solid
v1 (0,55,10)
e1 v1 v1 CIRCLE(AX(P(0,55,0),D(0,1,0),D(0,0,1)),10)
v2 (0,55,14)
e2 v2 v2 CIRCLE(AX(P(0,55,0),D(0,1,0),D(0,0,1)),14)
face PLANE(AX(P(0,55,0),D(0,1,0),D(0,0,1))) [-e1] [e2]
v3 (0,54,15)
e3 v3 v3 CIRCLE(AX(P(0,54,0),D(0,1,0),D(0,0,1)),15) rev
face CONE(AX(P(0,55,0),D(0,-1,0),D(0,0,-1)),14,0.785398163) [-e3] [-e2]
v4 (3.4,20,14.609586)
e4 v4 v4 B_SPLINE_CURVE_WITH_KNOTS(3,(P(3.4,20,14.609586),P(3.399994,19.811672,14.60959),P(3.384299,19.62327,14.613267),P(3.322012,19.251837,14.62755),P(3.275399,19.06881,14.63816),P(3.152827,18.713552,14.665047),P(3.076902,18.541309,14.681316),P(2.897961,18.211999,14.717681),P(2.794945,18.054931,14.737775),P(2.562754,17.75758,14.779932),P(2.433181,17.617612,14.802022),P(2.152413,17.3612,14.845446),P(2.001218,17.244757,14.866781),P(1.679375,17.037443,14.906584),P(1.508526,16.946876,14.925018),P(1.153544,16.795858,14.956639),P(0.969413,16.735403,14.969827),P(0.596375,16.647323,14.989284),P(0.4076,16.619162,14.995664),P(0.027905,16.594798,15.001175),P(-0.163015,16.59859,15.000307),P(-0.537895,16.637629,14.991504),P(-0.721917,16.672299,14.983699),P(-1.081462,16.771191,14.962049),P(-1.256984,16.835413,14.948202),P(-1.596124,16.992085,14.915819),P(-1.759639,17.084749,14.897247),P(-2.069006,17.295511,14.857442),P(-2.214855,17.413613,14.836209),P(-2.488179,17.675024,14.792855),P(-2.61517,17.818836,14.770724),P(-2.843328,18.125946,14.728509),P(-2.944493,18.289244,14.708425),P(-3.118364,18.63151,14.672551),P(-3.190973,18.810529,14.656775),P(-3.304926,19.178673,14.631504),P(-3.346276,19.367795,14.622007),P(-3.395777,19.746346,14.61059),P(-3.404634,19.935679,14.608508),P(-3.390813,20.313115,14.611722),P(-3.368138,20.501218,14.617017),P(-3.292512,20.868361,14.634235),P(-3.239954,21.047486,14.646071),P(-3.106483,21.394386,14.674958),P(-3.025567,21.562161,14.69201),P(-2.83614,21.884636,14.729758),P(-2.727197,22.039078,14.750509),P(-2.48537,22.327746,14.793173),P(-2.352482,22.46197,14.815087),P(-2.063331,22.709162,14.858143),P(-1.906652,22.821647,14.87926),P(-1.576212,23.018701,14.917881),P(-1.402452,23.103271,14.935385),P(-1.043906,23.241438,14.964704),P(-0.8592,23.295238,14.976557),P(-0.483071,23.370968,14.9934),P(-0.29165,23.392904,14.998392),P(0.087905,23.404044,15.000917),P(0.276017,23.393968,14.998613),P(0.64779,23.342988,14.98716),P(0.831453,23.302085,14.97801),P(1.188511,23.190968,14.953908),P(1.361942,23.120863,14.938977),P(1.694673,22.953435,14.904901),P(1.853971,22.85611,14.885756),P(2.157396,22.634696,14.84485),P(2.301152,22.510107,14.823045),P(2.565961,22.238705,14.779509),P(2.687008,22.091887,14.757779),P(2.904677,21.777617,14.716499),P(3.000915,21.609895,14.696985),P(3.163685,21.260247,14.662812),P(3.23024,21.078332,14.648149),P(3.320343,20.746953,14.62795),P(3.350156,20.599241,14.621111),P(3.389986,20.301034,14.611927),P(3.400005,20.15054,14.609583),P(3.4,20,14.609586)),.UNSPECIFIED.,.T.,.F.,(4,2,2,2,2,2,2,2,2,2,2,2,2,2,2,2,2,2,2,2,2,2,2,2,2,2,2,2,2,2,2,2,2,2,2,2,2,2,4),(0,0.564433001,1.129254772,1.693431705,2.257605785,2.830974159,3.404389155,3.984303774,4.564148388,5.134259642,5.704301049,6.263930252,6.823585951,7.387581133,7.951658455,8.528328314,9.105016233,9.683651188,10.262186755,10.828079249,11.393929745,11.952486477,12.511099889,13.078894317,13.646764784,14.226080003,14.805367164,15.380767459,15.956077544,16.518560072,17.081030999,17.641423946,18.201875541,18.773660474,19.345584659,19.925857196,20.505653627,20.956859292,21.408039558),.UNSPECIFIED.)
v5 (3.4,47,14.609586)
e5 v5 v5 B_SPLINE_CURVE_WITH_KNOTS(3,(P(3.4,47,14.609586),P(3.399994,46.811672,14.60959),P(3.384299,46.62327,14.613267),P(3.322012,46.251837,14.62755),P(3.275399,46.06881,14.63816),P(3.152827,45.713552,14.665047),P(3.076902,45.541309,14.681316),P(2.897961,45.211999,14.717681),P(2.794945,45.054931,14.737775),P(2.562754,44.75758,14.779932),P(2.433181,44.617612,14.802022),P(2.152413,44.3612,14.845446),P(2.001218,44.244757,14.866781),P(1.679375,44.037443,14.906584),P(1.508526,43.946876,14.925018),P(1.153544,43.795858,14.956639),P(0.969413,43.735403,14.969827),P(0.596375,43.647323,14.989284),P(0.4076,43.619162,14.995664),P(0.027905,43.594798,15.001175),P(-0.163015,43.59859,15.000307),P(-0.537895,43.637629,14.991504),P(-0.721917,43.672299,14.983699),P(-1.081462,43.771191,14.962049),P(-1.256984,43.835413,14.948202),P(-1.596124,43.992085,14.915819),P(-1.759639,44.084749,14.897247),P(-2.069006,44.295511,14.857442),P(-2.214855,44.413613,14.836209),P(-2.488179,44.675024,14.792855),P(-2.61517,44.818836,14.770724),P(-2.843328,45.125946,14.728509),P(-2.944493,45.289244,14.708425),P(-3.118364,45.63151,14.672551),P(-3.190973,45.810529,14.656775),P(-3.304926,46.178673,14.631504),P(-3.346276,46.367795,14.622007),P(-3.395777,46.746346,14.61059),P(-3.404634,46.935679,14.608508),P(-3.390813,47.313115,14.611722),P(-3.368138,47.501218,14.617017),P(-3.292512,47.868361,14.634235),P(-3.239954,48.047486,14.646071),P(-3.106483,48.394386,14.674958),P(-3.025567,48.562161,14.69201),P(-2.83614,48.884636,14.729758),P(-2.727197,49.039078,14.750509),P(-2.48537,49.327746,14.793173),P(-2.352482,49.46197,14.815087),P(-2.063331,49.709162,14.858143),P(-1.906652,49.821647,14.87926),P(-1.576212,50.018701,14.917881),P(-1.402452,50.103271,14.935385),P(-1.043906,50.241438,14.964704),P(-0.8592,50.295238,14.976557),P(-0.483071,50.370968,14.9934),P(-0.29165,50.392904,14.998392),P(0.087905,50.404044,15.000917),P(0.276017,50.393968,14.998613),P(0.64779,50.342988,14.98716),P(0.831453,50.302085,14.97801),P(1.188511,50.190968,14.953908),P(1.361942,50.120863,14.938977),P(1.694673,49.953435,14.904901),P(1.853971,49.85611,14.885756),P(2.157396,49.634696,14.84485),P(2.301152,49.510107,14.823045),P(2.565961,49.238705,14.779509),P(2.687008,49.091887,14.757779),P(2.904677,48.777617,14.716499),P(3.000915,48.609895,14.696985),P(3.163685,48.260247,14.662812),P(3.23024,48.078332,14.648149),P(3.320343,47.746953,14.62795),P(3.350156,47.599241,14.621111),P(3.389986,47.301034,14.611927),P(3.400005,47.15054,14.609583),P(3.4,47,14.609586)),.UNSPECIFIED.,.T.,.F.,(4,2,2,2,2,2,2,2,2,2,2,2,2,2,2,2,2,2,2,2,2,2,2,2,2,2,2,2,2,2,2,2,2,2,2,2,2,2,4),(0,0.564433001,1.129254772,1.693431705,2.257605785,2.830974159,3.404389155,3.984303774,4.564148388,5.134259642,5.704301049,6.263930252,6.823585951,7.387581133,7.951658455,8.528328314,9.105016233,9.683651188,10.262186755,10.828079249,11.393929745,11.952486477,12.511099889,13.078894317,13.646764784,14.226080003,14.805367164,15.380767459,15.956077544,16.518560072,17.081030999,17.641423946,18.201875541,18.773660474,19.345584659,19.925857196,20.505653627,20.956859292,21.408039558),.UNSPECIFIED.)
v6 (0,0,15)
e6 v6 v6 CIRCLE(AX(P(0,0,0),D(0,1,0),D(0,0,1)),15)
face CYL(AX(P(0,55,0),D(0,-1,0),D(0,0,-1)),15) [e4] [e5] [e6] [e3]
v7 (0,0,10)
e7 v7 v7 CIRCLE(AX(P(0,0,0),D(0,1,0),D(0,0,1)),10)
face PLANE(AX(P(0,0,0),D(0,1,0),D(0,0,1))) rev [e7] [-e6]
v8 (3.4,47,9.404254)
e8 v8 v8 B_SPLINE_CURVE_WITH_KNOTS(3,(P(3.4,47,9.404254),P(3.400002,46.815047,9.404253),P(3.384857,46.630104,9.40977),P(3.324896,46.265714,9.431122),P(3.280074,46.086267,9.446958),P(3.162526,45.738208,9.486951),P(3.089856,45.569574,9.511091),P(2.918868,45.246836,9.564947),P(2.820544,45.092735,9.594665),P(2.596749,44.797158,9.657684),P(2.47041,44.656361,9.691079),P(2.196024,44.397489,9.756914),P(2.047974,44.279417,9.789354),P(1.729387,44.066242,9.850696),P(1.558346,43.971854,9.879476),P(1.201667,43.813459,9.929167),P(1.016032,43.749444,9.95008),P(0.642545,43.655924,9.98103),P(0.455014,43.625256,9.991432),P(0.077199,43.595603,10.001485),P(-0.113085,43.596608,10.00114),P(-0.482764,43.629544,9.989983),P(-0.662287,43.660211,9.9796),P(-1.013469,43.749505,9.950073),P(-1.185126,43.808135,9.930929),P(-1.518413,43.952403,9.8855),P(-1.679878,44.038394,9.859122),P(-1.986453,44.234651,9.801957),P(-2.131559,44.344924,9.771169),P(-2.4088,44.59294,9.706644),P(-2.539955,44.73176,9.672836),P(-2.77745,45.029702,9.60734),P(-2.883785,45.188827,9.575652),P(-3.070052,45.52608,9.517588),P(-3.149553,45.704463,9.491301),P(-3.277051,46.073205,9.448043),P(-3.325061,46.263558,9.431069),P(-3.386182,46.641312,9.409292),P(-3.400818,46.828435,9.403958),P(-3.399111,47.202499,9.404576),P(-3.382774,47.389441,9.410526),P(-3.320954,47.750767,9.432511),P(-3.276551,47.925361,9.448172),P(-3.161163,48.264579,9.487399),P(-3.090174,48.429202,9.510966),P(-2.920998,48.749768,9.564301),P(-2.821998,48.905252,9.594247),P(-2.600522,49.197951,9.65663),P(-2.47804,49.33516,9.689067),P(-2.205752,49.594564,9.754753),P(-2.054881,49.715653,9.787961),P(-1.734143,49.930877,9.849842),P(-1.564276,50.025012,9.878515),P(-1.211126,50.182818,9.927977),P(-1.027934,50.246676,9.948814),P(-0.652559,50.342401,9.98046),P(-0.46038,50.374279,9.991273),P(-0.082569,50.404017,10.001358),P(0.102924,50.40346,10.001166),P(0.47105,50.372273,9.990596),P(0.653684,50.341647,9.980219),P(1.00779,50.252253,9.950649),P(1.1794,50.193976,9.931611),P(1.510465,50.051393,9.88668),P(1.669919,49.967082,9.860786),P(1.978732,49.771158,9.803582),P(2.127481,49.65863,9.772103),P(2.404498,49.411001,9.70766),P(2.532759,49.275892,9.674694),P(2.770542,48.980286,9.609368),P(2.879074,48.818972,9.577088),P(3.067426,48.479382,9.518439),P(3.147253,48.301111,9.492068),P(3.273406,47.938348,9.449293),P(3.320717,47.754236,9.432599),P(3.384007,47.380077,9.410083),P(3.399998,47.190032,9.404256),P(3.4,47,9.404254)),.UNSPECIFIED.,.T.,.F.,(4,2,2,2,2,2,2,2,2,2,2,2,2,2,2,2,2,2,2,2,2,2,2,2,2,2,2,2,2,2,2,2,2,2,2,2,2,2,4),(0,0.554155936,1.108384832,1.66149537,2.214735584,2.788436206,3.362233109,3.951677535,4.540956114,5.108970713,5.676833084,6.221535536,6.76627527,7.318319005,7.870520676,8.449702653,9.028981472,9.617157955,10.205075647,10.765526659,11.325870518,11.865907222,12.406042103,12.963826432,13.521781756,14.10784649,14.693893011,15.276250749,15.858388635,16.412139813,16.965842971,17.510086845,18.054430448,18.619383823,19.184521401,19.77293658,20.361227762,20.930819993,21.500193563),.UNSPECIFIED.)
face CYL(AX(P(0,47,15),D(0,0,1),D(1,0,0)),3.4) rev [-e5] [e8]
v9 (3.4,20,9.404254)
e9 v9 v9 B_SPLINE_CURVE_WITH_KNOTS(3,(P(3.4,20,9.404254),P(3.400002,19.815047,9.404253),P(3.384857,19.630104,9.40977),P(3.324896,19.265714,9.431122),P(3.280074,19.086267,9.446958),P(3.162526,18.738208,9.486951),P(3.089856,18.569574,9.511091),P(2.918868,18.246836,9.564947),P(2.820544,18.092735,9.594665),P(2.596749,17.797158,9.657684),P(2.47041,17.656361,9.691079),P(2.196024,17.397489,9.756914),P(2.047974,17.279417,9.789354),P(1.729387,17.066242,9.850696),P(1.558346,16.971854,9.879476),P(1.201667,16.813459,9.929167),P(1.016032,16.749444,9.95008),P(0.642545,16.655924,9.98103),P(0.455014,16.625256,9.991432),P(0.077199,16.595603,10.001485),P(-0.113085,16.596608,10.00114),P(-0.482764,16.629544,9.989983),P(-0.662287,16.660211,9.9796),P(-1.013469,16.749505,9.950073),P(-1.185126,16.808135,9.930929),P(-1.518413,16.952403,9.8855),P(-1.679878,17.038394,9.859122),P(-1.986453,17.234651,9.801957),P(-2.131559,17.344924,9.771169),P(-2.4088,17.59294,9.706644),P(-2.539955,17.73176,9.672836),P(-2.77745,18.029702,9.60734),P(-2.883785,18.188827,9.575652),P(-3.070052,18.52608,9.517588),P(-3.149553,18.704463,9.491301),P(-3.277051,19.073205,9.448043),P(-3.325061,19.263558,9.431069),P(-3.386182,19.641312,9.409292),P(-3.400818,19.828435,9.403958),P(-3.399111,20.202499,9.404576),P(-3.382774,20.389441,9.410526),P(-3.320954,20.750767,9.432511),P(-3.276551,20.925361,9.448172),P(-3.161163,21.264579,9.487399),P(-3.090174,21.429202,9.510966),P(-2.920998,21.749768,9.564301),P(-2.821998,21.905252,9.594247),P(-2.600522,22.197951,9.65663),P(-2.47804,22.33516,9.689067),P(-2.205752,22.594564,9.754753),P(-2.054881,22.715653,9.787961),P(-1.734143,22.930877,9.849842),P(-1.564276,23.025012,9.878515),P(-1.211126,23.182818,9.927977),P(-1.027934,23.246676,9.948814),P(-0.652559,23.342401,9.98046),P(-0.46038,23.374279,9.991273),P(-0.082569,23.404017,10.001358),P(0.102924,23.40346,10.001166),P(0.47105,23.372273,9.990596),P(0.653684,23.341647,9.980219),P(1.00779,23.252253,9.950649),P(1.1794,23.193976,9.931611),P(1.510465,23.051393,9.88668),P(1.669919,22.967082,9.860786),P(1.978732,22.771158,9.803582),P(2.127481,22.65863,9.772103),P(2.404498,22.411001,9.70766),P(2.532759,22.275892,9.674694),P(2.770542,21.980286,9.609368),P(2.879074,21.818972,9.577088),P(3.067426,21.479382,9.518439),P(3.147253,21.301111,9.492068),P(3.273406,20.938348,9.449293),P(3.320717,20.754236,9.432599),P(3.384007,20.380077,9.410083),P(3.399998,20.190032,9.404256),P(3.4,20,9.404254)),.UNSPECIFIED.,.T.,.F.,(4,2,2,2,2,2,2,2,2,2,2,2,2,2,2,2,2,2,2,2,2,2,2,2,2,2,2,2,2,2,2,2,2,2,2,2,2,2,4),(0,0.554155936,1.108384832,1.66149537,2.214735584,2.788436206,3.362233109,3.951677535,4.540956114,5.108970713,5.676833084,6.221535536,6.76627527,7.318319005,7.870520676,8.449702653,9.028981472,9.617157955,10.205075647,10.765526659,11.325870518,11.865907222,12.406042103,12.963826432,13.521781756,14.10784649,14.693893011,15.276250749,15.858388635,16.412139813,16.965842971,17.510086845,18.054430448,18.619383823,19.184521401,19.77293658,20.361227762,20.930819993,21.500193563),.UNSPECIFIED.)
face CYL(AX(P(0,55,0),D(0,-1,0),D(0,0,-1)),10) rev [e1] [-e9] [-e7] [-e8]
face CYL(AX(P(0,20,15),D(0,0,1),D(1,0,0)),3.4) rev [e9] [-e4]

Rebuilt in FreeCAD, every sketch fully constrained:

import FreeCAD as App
import Part
import Sketcher
from FreeCAD import Vector
Q = App.Units.Quantity


def edges_at(feature, points):
    """Names of the edges that pass closest to the given points."""
    edges = feature.Shape.Edges
    near = lambda p: min(range(len(edges)), key=lambda i: edges[i].distToShape(Part.Vertex(*p))[0])
    return sorted({f"Edge{near(p) + 1}" for p in points})

doc = App.newDocument("Part")
params = doc.addObject("Spreadsheet::Sheet", "Params")
for row, (alias, value) in enumerate([
    ("sketch1_diameter", "30 mm"),
    ("sketch1_diameter2", "20 mm"),
    ("pad1_length", "55 mm"),
    ("sketch2_diameter", "6.8 mm"),
    ("sketch3_diameter", "6.8 mm"),
    ("chamfer_size", "1 mm"),
], start=1):
    params.set(f"A{row}", alias)
    params.set(f"B{row}", "=" + value)
    params.setAlias(f"B{row}", alias)

body = doc.addObject("PartDesign::Body", "Body")

sketch1 = doc.addObject("Sketcher::SketchObject", "Sketch")
body.addObject(sketch1)
sketch1.AttachmentSupport = (doc.XZ_Plane, [""])
sketch1.MapMode = "FlatFace"
sketch1.addGeometry([
    Part.Circle(Vector(0, 0, 0), Vector(0, 0, 1), 15),
    Part.Circle(Vector(0, 0, 0), Vector(0, 0, 1), 10),
], False)
sketch1.addConstraint([
    Sketcher.Constraint("Coincident", 0, 3, -1, 1),
    Sketcher.Constraint("Coincident", 1, 3, -1, 1),
    Sketcher.Constraint("Diameter", 0, Q("30 mm")),
    Sketcher.Constraint("Diameter", 1, Q("20 mm")),
])
sketch1.setExpression("Constraints[2]", "Params.sketch1_diameter")
sketch1.setExpression("Constraints[3]", "Params.sketch1_diameter2")
pad1 = doc.addObject("PartDesign::Pad", "Pad")
body.addObject(pad1)
pad1.Profile = sketch1
pad1.setExpression("Length", "Params.pad1_length")
pad1.Reversed = True

sketch2 = doc.addObject("Sketcher::SketchObject", "Sketch001")
body.addObject(sketch2)
sketch2.AttachmentSupport = (doc.XY_Plane, [""])
sketch2.MapMode = "FlatFace"
sketch2.AttachmentOffset = App.Placement(Vector(0, 0, 15), App.Rotation())
sketch2.addGeometry(Part.Circle(Vector(0, 47, 0), Vector(0, 0, 1), 3.4), False)
sketch2.addConstraint([
    Sketcher.Constraint("PointOnObject", 0, 3, -2),
    Sketcher.Constraint("Diameter", 0, Q("6.8 mm")),
    Sketcher.Constraint("DistanceY", -1, 1, 0, 3, Q("47 mm")),
])
sketch2.setExpression("Constraints[1]", "Params.sketch2_diameter")
pocket1 = doc.addObject("PartDesign::Pocket", "Pocket")
body.addObject(pocket1)
pocket1.Profile = sketch2
pocket1.Type = "UpToFirst"

sketch3 = doc.addObject("Sketcher::SketchObject", "Sketch002")
body.addObject(sketch3)
sketch3.AttachmentSupport = (doc.XY_Plane, [""])
sketch3.MapMode = "FlatFace"
sketch3.AttachmentOffset = App.Placement(Vector(0, 0, 15), App.Rotation())
sketch3.addGeometry(Part.Circle(Vector(0, 20, 0), Vector(0, 0, 1), 3.4), False)
sketch3.addConstraint([
    Sketcher.Constraint("PointOnObject", 0, 3, -2),
    Sketcher.Constraint("Diameter", 0, Q("6.8 mm")),
    Sketcher.Constraint("DistanceY", -1, 1, 0, 3, Q("20 mm")),
])
sketch3.setExpression("Constraints[1]", "Params.sketch3_diameter")
pocket2 = doc.addObject("PartDesign::Pocket", "Pocket001")
body.addObject(pocket2)
pocket2.Profile = sketch3
pocket2.Type = "UpToFirst"
doc.recompute()

chamfer = doc.addObject("PartDesign::Chamfer", "Chamfer")
body.addObject(chamfer)
chamfer.Base = (pocket2, edges_at(pocket2, [(0, 55, -15)]))
chamfer.setExpression("Size", "Params.chamfer_size")

doc.recompute()
